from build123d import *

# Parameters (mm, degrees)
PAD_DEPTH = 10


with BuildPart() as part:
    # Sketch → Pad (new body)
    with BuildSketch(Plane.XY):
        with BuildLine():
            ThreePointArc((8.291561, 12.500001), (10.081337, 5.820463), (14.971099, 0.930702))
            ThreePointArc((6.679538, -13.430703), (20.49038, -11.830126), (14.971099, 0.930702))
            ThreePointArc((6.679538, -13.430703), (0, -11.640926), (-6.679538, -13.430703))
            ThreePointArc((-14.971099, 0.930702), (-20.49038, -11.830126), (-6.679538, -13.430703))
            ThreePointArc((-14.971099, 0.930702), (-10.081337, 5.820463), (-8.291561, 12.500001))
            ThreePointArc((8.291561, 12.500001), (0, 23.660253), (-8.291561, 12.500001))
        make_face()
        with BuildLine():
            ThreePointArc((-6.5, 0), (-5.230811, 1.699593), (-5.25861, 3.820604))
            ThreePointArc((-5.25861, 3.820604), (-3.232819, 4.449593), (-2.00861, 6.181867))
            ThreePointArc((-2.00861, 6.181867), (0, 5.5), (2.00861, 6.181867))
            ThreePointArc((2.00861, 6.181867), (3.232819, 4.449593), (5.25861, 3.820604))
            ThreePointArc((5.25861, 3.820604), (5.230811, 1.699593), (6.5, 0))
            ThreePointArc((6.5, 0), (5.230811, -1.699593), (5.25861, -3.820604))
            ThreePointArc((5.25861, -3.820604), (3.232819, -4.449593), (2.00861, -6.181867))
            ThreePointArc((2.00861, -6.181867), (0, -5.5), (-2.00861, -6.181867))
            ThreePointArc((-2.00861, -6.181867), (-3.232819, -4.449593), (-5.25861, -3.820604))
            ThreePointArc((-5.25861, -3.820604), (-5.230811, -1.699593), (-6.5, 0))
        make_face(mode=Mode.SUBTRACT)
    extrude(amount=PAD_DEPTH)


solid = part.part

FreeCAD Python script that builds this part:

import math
import FreeCAD as App
import Part
import Sketcher
from FreeCAD import Vector

doc = App.newDocument("Part")
params = doc.addObject("Spreadsheet::Sheet", "Params")
for row, (alias, value) in enumerate([
    ("pad1_length", "10 mm"),
], start=1):
    params.set(f"A{row}", alias)
    params.set(f"B{row}", "=" + value)
    params.setAlias(f"B{row}", alias)

body = doc.addObject("PartDesign::Body", "Body")

sketch1 = body.newObject("Sketcher::SketchObject", "Sketch")
sketch1.AttachmentSupport = (doc.getObject("XY_Plane"), [""])
sketch1.MapMode = "FlatFace"
sketch1.addGeometry([
    Part.ArcOfCircle(Part.Circle(Vector(21.650632, 12.499998, 0), Vector(0, 0, 1), 13.359071), math.radians(179.999988), math.radians(240.000013)),
    Part.ArcOfCircle(Part.Circle(Vector(0, 15, 0), Vector(0, 0, 1), 8.660253), math.radians(-16.778651), math.radians(196.778651)),
    Part.ArcOfCircle(Part.Circle(Vector(-21.650632, 12.499998, 0), Vector(0, 0, 1), 13.359071), math.radians(-60.000013), math.radians(0.000012)),
    Part.ArcOfCircle(Part.Circle(Vector(-12.990381, -7.5, 0), Vector(0, 0, 1), 8.660253), math.radians(103.221351), math.radians(316.778649)),
    Part.ArcOfCircle(Part.Circle(Vector(0, -25.000001, 0), Vector(0, 0, 1), 13.359075), math.radians(59.999997), math.radians(120.000003)),
    Part.ArcOfCircle(Part.Circle(Vector(12.990381, -7.5, 0), Vector(0, 0, 1), 8.660253), math.radians(-136.778649), math.radians(76.778649)),
    Part.ArcOfCircle(Part.Circle(Vector(-8.368695, 2.719154, 0), Vector(0, 0, 1), 3.299366), math.radians(-55.501835), math.radians(19.501821)),
    Part.ArcOfCircle(Part.Circle(Vector(-5.172137, 7.118836, 0), Vector(0, 0, 1), 3.299366), math.radians(-91.501836), math.radians(-16.498169)),
    Part.ArcOfCircle(Part.Circle(Vector(0, 8.799365, 0), Vector(0, 0, 1), 3.299365), math.radians(-127.50183), math.radians(-52.49817)),
    Part.ArcOfCircle(Part.Circle(Vector(5.172137, 7.118836, 0), Vector(0, 0, 1), 3.299366), math.radians(-163.501831), math.radians(-88.498164)),
    Part.ArcOfCircle(Part.Circle(Vector(8.368695, 2.719154, 0), Vector(0, 0, 1), 3.299366), math.radians(160.498179), math.radians(235.501835)),
    Part.ArcOfCircle(Part.Circle(Vector(8.368695, -2.719154, 0), Vector(0, 0, 1), 3.299366), math.radians(124.498165), math.radians(199.501821)),
    Part.ArcOfCircle(Part.Circle(Vector(5.172137, -7.118836, 0), Vector(0, 0, 1), 3.299366), math.radians(88.498164), math.radians(163.501831)),
    Part.ArcOfCircle(Part.Circle(Vector(0, -8.799365, 0), Vector(0, 0, 1), 3.299365), math.radians(52.49817), math.radians(127.50183)),
    Part.ArcOfCircle(Part.Circle(Vector(-5.172137, -7.118836, 0), Vector(0, 0, 1), 3.299366), math.radians(16.498169), math.radians(91.501836)),
    Part.ArcOfCircle(Part.Circle(Vector(-8.368695, -2.719154, 0), Vector(0, 0, 1), 3.299366), math.radians(-19.501821), math.radians(55.501835)),
], False)
sketch1.addConstraint([
    Sketcher.Constraint("Coincident", 0, 1, 1, 1),
    Sketcher.Constraint("Coincident", 1, 2, 2, 2),
    Sketcher.Constraint("Coincident", 2, 1, 3, 1),
    Sketcher.Constraint("Coincident", 3, 2, 4, 2),
    Sketcher.Constraint("Coincident", 4, 1, 5, 1),
    Sketcher.Constraint("Coincident", 5, 2, 0, 2),
    Sketcher.Constraint("Coincident", 6, 2, 7, 1),
    Sketcher.Constraint("Coincident", 7, 2, 8, 1),
    Sketcher.Constraint("Coincident", 8, 2, 9, 1),
    Sketcher.Constraint("Coincident", 9, 2, 10, 1),
    Sketcher.Constraint("Coincident", 10, 2, 11, 1),
    Sketcher.Constraint("Coincident", 11, 2, 12, 1),
    Sketcher.Constraint("Coincident", 12, 2, 13, 1),
    Sketcher.Constraint("Coincident", 13, 2, 14, 1),
    Sketcher.Constraint("Coincident", 14, 2, 15, 1),
    Sketcher.Constraint("Coincident", 15, 2, 6, 1),
    Sketcher.Constraint("Equal", 0, 2),
    Sketcher.Constraint("Equal", 1, 3),
    Sketcher.Constraint("Equal", 3, 5),
    Sketcher.Constraint("Equal", 6, 7),
    Sketcher.Constraint("Equal", 7, 8),
    Sketcher.Constraint("Equal", 8, 9),
    Sketcher.Constraint("Equal", 9, 10),
    Sketcher.Constraint("Equal", 10, 11),
    Sketcher.Constraint("Equal", 11, 12),
    Sketcher.Constraint("Equal", 12, 13),
    Sketcher.Constraint("Equal", 13, 14),
    Sketcher.Constraint("Equal", 14, 15),
    Sketcher.Constraint("Symmetric", 6, 3, 11, 3, -1, 1),
    Sketcher.Constraint("Symmetric", 7, 3, 12, 3, -1, 1),
    Sketcher.Constraint("Symmetric", 8, 3, 13, 3, -1, 1),
    Sketcher.Constraint("Symmetric", 9, 3, 14, 3, -1, 1),
    Sketcher.Constraint("Symmetric", 10, 3, 15, 3, -1, 1),
    Sketcher.Constraint("Symmetric", 0, 3, 2, 3, -2),
    Sketcher.Constraint("Symmetric", 3, 3, 5, 3, -2),
    Sketcher.Constraint("Symmetric", 7, 3, 9, 3, -2),
    Sketcher.Constraint("Symmetric", 6, 3, 10, 3, -2),
    Sketcher.Constraint("PointOnObject", 1, 3, -2),
    Sketcher.Constraint("PointOnObject", 4, 3, -2),
    Sketcher.Constraint("PointOnObject", 8, 3, -2),
    Sketcher.Constraint("DistanceY", -1, 1, 1, 3, 15.0),
    Sketcher.Constraint("DistanceY", 4, 3, -1, 1, 25.000001),
    Sketcher.Constraint("DistanceY", 3, 3, 2, 3, 19.999998),
    Sketcher.Constraint("DistanceY", -1, 1, 0, 3, 12.499998),
    Sketcher.Constraint("DistanceY", -1, 1, 0, 1, 12.500001),
    Sketcher.Constraint("DistanceX", -1, 1, 10, 2, 6.5),
    Sketcher.Constraint("Radius", 0, 13.359071),
    Sketcher.Constraint("DistanceX", 6, 2, 7, 2, 3.25),
    Sketcher.Constraint("Radius", 1, 8.660253),
    Sketcher.Constraint("Radius", 4, 13.359075),
    Sketcher.Constraint("Radius", 6, 3.299366),
    Sketcher.Constraint("DistanceX", 2, 1, -1, 1, 14.971099),
    Sketcher.Constraint("DistanceY", 12, 3, 8, 3, 15.918202),
    Sketcher.Constraint("DistanceX", 3, 2, 14, 3, 1.507401),
    Sketcher.Constraint("DistanceY", 7, 2, 8, 3, 2.617498),
])
pad1 = body.newObject("PartDesign::Pad", "Pad")
pad1.Profile = sketch1
pad1.setExpression("Length", "Params.pad1_length")

doc.recompute()
